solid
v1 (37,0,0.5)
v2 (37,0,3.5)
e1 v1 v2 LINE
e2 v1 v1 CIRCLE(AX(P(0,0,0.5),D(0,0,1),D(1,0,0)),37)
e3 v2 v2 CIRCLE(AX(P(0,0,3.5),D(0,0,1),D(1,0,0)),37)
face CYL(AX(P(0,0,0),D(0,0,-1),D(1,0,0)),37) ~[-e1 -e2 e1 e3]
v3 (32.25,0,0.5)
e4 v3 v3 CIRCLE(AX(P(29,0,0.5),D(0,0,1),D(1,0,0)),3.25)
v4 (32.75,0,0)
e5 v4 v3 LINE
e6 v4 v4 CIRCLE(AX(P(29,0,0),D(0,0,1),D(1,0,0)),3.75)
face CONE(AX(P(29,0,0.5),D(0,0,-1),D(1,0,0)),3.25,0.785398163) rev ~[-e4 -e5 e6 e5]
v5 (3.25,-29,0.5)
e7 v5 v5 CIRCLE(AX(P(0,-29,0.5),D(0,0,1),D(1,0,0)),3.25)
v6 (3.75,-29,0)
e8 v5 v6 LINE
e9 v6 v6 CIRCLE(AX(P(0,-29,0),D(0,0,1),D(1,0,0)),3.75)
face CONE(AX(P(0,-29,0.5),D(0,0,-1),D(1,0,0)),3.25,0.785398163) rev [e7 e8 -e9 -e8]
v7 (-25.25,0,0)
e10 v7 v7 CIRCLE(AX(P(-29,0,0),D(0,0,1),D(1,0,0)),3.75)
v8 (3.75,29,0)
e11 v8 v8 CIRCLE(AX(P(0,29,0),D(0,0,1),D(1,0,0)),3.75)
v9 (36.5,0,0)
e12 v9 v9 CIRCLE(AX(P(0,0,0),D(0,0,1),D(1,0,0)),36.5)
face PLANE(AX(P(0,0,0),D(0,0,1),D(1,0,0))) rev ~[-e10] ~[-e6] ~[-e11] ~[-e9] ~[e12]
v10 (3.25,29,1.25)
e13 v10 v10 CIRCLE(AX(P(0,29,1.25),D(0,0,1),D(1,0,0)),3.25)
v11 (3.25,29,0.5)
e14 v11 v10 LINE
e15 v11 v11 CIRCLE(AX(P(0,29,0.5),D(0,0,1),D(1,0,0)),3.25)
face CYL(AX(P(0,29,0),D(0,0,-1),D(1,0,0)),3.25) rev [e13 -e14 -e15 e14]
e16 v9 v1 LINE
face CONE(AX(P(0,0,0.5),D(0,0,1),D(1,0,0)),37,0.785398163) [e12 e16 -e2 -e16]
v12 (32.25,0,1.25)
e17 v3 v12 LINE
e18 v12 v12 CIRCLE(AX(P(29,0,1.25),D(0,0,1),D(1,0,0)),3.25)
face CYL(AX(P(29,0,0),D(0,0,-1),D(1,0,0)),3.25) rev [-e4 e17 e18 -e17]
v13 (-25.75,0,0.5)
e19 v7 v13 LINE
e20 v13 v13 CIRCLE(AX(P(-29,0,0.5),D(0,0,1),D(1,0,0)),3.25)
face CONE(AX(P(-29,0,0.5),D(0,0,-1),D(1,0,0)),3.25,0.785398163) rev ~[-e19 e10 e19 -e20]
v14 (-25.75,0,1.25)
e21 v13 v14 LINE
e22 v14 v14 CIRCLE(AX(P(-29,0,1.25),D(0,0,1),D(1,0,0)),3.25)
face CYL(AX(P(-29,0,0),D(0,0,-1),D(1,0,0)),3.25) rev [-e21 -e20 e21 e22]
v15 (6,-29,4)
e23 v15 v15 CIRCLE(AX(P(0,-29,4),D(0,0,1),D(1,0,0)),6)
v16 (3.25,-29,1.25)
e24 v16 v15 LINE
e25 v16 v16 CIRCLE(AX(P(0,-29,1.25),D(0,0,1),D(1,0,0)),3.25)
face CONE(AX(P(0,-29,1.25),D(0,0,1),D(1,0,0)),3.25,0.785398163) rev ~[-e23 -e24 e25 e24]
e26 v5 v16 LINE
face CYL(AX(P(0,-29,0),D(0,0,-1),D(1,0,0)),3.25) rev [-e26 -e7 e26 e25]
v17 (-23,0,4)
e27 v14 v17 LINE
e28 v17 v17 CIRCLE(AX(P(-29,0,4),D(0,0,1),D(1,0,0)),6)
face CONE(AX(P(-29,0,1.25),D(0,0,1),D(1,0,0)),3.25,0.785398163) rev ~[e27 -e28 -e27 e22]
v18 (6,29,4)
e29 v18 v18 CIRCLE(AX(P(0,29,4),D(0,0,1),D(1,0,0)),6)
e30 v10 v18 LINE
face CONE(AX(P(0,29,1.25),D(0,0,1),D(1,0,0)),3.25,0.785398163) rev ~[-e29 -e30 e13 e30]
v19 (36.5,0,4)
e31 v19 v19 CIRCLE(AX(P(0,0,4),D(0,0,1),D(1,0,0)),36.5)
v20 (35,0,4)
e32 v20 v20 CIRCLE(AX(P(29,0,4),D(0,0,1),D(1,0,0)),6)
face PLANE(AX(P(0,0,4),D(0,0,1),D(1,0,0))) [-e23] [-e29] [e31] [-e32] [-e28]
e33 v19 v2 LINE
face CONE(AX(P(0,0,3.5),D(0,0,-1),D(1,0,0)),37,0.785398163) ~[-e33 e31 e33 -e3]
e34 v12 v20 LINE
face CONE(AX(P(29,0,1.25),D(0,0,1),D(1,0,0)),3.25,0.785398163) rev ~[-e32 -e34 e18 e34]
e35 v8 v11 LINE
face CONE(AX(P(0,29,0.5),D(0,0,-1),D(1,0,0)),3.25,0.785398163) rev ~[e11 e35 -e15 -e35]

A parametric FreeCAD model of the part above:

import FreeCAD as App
import Part
import Sketcher

V = App.Vector


def edges_at(feature, points):
    """Names of the edges that pass closest to the given points."""
    edges = feature.Shape.Edges
    near = lambda p: min(range(len(edges)), key=lambda i: edges[i].distToShape(Part.Vertex(*p))[0])
    return sorted({f"Edge{near(p) + 1}" for p in points})

doc = App.newDocument("Part")
body = doc.addObject("PartDesign::Body", "Body")

# Sketch on XY plane
sketch1 = body.newObject("Sketcher::SketchObject", "Sketch")
sketch1.AttachmentSupport = (doc.getObject("XY_Plane"), [""])
sketch1.MapMode = "FlatFace"
sketch1.addGeometry([
    Part.Circle(V(0, 0, 0), V(0, 0, 1), 37),  # 0
    Part.Circle(V(0, -29, 0), V(0, 0, 1), 3.2),  # 1
    Part.Circle(V(-29, 0, 0), V(0, 0, 1), 3.2),  # 2
    Part.Circle(V(29, 0, 0), V(0, 0, 1), 3.2),  # 3
    Part.Circle(V(0, 29, 0), V(0, 0, 1), 3.2),  # 4
], False)
sketch1.addConstraint([
    Sketcher.Constraint("Coincident", 0, 3, -1, 1),
    Sketcher.Constraint("Equal", 1, 2),
    Sketcher.Constraint("Equal", 2, 3),
    Sketcher.Constraint("Equal", 3, 4),
    Sketcher.Constraint("Symmetric", 2, 3, 3, 3, -1, 1),
    Sketcher.Constraint("Symmetric", 1, 3, 4, 3, -1, 1),
    Sketcher.Constraint("PointOnObject", 1, 3, -2),
    Sketcher.Constraint("PointOnObject", 2, 3, -1),
    Sketcher.Constraint("Diameter", 0, 74.0),
    Sketcher.Constraint("Diameter", 1, 6.5),
    Sketcher.Constraint("DistanceY", 1, 3, -1, 1, 29.0),
    Sketcher.Constraint("DistanceX", 2, 3, -1, 1, 29.0),
])
pad1 = body.newObject("PartDesign::Pad", "Pad")
pad1.Profile = sketch1
pad1.Length = 4
doc.recompute()

chamfer = body.newObject("PartDesign::Chamfer", "Chamfer")
chamfer.Base = (pad1, edges_at(pad1, [
    (-3.25, -29, 4),
    (-32.25, 0, 4),
    (-3.25, 29, 4),
    (25.75, 0, 4),
]))
chamfer.Size = 2.75
doc.recompute()

chamfer2 = body.newObject("PartDesign::Chamfer", "Chamfer001")
chamfer2.Base = (chamfer, edges_at(chamfer, [
    (37, 0, 2),
    (-37, 0, 0),
    (-37, 0, 4),
    (-3.25, -29, 0),
    (-32.25, 0, 0),
    (-3.25, 29, 0),
    (25.75, 0, 0),
]))
chamfer2.Size = 0.5

doc.recompute()
